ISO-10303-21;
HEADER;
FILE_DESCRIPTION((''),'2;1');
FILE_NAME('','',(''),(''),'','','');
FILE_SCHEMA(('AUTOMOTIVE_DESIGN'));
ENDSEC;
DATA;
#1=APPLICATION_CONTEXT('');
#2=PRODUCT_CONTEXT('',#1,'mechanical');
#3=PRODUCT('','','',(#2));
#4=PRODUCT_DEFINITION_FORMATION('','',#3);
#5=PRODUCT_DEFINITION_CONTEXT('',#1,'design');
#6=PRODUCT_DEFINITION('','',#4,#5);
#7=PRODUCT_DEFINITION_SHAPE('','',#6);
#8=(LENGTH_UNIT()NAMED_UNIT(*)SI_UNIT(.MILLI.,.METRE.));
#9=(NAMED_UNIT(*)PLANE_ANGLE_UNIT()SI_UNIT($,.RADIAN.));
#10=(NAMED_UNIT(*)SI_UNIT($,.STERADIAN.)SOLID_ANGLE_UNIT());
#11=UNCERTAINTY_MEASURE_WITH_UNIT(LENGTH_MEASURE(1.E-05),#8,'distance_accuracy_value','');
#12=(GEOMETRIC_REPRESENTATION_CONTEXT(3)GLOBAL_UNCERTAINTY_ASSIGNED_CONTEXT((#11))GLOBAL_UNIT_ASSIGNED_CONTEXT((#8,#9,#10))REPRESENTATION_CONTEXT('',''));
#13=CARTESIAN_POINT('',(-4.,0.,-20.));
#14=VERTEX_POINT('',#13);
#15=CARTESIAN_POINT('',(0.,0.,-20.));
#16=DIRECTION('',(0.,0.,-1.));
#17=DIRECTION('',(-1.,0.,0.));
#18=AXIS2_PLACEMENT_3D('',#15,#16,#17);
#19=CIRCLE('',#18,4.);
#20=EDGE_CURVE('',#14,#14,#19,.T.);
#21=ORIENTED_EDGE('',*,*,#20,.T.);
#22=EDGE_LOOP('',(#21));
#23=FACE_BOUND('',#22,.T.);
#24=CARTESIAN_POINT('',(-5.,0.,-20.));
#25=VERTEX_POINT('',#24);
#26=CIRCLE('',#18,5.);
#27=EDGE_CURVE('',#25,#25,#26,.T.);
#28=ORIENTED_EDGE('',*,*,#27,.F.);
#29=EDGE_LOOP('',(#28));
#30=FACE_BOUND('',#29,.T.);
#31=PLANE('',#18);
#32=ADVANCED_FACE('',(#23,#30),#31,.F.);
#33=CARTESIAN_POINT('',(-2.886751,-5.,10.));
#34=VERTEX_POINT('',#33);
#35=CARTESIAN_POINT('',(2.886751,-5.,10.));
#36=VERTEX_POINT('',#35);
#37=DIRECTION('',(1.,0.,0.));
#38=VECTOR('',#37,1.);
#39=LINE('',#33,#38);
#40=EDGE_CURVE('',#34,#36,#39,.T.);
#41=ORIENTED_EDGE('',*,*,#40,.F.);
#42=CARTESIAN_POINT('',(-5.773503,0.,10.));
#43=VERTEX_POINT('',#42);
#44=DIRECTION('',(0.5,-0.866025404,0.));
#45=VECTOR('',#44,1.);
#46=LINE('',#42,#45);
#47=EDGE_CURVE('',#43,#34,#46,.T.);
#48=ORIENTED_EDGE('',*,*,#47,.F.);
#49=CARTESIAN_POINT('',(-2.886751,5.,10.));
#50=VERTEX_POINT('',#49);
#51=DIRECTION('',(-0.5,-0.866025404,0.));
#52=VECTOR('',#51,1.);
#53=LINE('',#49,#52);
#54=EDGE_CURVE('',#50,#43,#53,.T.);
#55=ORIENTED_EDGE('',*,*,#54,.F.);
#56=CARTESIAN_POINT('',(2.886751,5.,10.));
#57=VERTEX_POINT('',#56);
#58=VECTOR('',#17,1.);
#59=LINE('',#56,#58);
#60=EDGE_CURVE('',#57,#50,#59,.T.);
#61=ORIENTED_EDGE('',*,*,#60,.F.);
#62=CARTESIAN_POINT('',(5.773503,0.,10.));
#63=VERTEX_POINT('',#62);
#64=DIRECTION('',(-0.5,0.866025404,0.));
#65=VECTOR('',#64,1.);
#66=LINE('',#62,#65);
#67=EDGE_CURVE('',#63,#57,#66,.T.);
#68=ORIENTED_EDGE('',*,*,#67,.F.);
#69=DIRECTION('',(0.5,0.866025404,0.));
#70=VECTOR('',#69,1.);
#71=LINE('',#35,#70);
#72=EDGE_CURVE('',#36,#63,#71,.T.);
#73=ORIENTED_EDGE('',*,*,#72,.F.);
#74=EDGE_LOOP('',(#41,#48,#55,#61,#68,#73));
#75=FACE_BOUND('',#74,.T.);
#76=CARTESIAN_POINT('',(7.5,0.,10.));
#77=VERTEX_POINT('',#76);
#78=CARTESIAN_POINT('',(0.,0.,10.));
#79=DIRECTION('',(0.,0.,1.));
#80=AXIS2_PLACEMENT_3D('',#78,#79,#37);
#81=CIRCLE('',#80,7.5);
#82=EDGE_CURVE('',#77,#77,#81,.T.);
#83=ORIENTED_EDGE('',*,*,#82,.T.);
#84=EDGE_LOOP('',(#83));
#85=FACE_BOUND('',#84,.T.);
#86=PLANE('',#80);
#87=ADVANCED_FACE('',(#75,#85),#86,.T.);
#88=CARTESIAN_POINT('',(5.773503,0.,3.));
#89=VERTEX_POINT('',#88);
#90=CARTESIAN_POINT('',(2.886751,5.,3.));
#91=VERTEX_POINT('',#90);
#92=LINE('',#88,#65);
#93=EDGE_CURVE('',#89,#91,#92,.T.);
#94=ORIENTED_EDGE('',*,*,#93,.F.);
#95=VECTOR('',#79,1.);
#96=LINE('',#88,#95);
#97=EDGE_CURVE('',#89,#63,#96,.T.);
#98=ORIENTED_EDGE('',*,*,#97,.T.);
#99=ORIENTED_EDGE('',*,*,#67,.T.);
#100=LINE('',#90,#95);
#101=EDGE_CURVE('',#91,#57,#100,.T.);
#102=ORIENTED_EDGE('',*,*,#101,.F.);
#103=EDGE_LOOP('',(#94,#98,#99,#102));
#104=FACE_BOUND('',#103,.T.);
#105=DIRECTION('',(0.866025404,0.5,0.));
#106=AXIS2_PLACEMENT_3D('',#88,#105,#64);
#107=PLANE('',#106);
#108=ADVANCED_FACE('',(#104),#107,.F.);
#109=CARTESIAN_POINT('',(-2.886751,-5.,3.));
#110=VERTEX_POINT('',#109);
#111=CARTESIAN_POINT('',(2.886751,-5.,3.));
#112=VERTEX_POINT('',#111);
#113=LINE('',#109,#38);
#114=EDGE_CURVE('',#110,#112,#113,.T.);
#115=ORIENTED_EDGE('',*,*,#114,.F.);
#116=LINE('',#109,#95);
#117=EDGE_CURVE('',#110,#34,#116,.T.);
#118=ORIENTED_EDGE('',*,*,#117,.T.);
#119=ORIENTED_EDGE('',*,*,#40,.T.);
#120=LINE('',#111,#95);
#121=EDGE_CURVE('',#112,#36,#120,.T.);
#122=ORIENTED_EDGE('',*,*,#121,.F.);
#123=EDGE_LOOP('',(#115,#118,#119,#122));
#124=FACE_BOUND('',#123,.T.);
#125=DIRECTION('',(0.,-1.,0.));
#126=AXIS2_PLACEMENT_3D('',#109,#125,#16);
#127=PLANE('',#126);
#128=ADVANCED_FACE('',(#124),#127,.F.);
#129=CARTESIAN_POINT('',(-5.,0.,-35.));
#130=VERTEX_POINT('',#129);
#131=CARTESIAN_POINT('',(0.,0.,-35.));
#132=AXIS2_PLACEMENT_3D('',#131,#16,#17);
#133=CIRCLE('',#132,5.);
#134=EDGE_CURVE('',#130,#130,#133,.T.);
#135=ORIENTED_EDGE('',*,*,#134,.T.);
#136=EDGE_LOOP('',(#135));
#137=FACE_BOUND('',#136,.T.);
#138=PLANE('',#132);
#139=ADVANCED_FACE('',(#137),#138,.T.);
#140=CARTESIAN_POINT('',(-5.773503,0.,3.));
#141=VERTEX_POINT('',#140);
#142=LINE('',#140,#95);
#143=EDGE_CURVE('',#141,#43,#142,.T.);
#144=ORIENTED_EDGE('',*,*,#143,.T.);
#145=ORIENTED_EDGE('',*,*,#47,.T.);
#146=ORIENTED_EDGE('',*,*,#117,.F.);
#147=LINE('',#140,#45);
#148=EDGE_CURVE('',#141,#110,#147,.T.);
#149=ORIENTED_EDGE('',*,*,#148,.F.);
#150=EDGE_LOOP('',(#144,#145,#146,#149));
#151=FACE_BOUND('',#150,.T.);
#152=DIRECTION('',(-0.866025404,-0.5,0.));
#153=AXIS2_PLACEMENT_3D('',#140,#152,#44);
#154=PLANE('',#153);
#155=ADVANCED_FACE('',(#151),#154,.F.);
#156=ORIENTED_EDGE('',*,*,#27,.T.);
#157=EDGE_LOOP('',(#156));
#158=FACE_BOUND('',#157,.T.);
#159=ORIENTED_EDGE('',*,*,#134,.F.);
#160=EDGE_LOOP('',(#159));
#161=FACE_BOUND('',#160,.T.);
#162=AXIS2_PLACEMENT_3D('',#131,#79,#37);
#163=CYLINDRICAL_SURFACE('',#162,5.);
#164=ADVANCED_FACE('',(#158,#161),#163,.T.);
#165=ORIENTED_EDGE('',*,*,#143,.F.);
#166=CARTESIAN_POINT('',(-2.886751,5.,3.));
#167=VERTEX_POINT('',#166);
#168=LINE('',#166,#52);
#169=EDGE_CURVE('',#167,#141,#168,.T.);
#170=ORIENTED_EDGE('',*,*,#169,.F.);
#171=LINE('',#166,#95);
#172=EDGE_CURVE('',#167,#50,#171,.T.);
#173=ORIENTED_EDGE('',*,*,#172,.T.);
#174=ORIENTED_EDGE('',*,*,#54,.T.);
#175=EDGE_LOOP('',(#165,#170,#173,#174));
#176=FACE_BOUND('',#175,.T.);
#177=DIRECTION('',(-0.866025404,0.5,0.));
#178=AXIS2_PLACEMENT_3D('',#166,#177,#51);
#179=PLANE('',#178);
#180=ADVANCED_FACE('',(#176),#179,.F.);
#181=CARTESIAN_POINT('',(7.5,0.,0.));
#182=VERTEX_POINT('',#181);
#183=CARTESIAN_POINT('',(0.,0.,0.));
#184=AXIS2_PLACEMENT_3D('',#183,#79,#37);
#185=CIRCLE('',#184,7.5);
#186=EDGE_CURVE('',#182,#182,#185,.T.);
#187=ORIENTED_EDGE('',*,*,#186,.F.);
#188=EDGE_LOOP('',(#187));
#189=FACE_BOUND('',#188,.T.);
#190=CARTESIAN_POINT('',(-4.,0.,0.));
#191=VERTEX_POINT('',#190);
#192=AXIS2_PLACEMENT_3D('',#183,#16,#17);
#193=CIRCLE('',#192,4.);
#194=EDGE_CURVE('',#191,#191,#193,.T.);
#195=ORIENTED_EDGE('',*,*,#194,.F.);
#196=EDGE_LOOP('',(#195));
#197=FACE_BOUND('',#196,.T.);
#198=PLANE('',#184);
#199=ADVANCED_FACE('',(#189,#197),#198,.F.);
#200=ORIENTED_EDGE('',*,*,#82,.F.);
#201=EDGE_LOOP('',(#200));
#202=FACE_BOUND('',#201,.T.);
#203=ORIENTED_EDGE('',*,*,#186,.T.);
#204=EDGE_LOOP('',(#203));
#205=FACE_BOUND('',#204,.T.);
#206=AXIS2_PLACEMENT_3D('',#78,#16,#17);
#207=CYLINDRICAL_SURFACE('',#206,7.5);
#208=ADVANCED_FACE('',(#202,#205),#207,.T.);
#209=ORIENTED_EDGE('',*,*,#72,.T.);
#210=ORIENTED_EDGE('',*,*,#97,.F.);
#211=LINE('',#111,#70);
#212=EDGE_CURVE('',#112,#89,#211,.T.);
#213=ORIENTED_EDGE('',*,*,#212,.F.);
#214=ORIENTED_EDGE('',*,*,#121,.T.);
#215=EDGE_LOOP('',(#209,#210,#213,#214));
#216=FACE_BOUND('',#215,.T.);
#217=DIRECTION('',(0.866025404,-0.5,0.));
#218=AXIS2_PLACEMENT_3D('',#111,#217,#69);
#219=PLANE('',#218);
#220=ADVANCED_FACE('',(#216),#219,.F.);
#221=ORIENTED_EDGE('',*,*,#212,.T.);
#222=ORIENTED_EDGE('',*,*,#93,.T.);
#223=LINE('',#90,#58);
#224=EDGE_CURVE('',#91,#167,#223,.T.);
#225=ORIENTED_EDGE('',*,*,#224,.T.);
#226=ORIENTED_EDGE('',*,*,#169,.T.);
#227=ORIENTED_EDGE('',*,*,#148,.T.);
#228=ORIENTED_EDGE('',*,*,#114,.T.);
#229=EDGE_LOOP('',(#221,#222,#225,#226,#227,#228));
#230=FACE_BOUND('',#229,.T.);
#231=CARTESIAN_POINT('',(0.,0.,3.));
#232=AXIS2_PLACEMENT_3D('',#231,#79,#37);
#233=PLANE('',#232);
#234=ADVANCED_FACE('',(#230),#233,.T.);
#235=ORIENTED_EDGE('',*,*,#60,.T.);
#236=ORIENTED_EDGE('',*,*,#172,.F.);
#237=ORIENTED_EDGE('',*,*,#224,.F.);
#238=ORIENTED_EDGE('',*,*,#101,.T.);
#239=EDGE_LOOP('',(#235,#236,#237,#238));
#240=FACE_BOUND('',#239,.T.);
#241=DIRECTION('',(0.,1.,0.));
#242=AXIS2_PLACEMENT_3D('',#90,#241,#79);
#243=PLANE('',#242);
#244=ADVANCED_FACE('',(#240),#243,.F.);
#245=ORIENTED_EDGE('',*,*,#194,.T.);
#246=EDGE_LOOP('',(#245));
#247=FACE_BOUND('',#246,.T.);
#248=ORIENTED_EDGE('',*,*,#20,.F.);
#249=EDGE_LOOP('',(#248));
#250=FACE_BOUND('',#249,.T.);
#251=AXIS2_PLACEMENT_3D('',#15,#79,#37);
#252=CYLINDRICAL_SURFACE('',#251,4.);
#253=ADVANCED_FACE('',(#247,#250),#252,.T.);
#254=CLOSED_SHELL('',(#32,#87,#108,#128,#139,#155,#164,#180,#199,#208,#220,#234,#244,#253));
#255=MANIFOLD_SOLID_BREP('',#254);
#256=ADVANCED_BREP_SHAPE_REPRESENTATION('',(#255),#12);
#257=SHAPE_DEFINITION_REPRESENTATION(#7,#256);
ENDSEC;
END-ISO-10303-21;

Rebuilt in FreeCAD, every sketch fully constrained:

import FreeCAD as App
import Part
import Sketcher
Q = App.Units.Quantity


def add_polygon(sketch, points):
    """Adds a closed chain of lines whose ends are joined by coincident constraints."""
    first, n = sketch.GeometryCount, len(points)
    for a, b in zip(points, points[1:] + points[:1]):
        sketch.addGeometry(Part.LineSegment(App.Vector(*a, 0), App.Vector(*b, 0)), False)
    for i in range(n):
        sketch.addConstraint(Sketcher.Constraint("Coincident", first + i, 2, first + (i + 1) % n, 1))

doc = App.newDocument("Part")
params = doc.addObject("Spreadsheet::Sheet", "Params")
for row, (alias, value) in enumerate([
    ("sketch1_diameter", "15 mm"),
    ("pad1_length", "10 mm"),
    ("sketch2_diameter", "8 mm"),
    ("pad2_length", "20 mm"),
    ("sketch3_diameter", "10 mm"),
    ("pad3_length", "15 mm"),
    ("pocket1_length", "7 mm"),
], start=1):
    params.set(f"A{row}", alias)
    params.set(f"B{row}", "=" + value)
    params.setAlias(f"B{row}", alias)

body = doc.addObject("PartDesign::Body", "Body")

# Sketch on XY plane
sketch1 = body.newObject("Sketcher::SketchObject", "Sketch")
sketch1.AttachmentSupport = (doc.getObject("XY_Plane"), [""])
sketch1.MapMode = "FlatFace"
sketch1.addGeometry(Part.Circle(App.Vector(0, 0, 0), App.Vector(0, 0, 1), 7.5), False)
sketch1.addConstraint(Sketcher.Constraint("Coincident", 0, 3, -1, 1))
sketch1.addConstraint(Sketcher.Constraint("Diameter", 0, Q("15 mm")))
sketch1.setExpression("Constraints[1]", "Params.sketch1_diameter")
pad1 = body.newObject("PartDesign::Pad", "Pad")
pad1.Profile = sketch1
pad1.setExpression("Length", "Params.pad1_length")

# Sketch on XY plane
sketch2 = body.newObject("Sketcher::SketchObject", "Sketch001")
sketch2.AttachmentSupport = (doc.getObject("XY_Plane"), [""])
sketch2.MapMode = "FlatFace"
sketch2.addGeometry(Part.Circle(App.Vector(0, 0, 0), App.Vector(0, 0, 1), 4), False)
sketch2.addConstraint(Sketcher.Constraint("Coincident", 0, 3, -1, 1))
sketch2.addConstraint(Sketcher.Constraint("Diameter", 0, Q("8 mm")))
sketch2.setExpression("Constraints[1]", "Params.sketch2_diameter")
pad2 = body.newObject("PartDesign::Pad", "Pad001")
pad2.Profile = sketch2
pad2.setExpression("Length", "Params.pad2_length")
pad2.Reversed = True

# Sketch on XY plane
sketch3 = body.newObject("Sketcher::SketchObject", "Sketch002")
sketch3.AttachmentSupport = (doc.getObject("XY_Plane"), [""])
sketch3.MapMode = "FlatFace"
sketch3.AttachmentOffset = App.Placement(App.Vector(0, 0, -20), App.Rotation())
sketch3.addGeometry(Part.Circle(App.Vector(0, 0, 0), App.Vector(0, 0, 1), 5), False)
sketch3.addConstraint(Sketcher.Constraint("Coincident", 0, 3, -1, 1))
sketch3.addConstraint(Sketcher.Constraint("Diameter", 0, Q("10 mm")))
sketch3.setExpression("Constraints[1]", "Params.sketch3_diameter")
pad3 = body.newObject("PartDesign::Pad", "Pad002")
pad3.Profile = sketch3
pad3.setExpression("Length", "Params.pad3_length")
pad3.Reversed = True

# Sketch on XY plane
sketch4 = body.newObject("Sketcher::SketchObject", "Sketch003")
sketch4.AttachmentSupport = (doc.getObject("XY_Plane"), [""])
sketch4.MapMode = "FlatFace"
sketch4.AttachmentOffset = App.Placement(App.Vector(0, 0, 10), App.Rotation())
add_polygon(sketch4, [(2.886751, 5), (-2.886751, 5), (-5.773503, 0), (-2.886751, -5), (2.886751, -5), (5.773503, 0)])  # lines 0-5
sketch4.addConstraint(Sketcher.Constraint("Horizontal", 0))
sketch4.addConstraint(Sketcher.Constraint("Horizontal", 3))
sketch4.addConstraint(Sketcher.Constraint("Symmetric", 0, 2, 3, 2, -1, 1))
sketch4.addConstraint(Sketcher.Constraint("Symmetric", 1, 2, 4, 2, -1, 1))
sketch4.addConstraint(Sketcher.Constraint("PointOnObject", 1, 2, -1))
sketch4.addConstraint(Sketcher.Constraint("Parallel", 2, 5))
sketch4.addConstraint(Sketcher.Constraint("Vertical", 0, 2, 2, 2))
sketch4.addConstraint(Sketcher.Constraint("Angle", 1, Q("-120 deg")))
sketch4.addConstraint(Sketcher.Constraint("DistanceY", -1, 1, 0, 2, Q("5 mm")))
sketch4.addConstraint(Sketcher.Constraint("DistanceX", 0, 2, 0, 1, Q("5.773503 mm")))
pocket1 = body.newObject("PartDesign::Pocket", "Pocket")
pocket1.Profile = sketch4
pocket1.setExpression("Length", "Params.pocket1_length")

doc.recompute()
